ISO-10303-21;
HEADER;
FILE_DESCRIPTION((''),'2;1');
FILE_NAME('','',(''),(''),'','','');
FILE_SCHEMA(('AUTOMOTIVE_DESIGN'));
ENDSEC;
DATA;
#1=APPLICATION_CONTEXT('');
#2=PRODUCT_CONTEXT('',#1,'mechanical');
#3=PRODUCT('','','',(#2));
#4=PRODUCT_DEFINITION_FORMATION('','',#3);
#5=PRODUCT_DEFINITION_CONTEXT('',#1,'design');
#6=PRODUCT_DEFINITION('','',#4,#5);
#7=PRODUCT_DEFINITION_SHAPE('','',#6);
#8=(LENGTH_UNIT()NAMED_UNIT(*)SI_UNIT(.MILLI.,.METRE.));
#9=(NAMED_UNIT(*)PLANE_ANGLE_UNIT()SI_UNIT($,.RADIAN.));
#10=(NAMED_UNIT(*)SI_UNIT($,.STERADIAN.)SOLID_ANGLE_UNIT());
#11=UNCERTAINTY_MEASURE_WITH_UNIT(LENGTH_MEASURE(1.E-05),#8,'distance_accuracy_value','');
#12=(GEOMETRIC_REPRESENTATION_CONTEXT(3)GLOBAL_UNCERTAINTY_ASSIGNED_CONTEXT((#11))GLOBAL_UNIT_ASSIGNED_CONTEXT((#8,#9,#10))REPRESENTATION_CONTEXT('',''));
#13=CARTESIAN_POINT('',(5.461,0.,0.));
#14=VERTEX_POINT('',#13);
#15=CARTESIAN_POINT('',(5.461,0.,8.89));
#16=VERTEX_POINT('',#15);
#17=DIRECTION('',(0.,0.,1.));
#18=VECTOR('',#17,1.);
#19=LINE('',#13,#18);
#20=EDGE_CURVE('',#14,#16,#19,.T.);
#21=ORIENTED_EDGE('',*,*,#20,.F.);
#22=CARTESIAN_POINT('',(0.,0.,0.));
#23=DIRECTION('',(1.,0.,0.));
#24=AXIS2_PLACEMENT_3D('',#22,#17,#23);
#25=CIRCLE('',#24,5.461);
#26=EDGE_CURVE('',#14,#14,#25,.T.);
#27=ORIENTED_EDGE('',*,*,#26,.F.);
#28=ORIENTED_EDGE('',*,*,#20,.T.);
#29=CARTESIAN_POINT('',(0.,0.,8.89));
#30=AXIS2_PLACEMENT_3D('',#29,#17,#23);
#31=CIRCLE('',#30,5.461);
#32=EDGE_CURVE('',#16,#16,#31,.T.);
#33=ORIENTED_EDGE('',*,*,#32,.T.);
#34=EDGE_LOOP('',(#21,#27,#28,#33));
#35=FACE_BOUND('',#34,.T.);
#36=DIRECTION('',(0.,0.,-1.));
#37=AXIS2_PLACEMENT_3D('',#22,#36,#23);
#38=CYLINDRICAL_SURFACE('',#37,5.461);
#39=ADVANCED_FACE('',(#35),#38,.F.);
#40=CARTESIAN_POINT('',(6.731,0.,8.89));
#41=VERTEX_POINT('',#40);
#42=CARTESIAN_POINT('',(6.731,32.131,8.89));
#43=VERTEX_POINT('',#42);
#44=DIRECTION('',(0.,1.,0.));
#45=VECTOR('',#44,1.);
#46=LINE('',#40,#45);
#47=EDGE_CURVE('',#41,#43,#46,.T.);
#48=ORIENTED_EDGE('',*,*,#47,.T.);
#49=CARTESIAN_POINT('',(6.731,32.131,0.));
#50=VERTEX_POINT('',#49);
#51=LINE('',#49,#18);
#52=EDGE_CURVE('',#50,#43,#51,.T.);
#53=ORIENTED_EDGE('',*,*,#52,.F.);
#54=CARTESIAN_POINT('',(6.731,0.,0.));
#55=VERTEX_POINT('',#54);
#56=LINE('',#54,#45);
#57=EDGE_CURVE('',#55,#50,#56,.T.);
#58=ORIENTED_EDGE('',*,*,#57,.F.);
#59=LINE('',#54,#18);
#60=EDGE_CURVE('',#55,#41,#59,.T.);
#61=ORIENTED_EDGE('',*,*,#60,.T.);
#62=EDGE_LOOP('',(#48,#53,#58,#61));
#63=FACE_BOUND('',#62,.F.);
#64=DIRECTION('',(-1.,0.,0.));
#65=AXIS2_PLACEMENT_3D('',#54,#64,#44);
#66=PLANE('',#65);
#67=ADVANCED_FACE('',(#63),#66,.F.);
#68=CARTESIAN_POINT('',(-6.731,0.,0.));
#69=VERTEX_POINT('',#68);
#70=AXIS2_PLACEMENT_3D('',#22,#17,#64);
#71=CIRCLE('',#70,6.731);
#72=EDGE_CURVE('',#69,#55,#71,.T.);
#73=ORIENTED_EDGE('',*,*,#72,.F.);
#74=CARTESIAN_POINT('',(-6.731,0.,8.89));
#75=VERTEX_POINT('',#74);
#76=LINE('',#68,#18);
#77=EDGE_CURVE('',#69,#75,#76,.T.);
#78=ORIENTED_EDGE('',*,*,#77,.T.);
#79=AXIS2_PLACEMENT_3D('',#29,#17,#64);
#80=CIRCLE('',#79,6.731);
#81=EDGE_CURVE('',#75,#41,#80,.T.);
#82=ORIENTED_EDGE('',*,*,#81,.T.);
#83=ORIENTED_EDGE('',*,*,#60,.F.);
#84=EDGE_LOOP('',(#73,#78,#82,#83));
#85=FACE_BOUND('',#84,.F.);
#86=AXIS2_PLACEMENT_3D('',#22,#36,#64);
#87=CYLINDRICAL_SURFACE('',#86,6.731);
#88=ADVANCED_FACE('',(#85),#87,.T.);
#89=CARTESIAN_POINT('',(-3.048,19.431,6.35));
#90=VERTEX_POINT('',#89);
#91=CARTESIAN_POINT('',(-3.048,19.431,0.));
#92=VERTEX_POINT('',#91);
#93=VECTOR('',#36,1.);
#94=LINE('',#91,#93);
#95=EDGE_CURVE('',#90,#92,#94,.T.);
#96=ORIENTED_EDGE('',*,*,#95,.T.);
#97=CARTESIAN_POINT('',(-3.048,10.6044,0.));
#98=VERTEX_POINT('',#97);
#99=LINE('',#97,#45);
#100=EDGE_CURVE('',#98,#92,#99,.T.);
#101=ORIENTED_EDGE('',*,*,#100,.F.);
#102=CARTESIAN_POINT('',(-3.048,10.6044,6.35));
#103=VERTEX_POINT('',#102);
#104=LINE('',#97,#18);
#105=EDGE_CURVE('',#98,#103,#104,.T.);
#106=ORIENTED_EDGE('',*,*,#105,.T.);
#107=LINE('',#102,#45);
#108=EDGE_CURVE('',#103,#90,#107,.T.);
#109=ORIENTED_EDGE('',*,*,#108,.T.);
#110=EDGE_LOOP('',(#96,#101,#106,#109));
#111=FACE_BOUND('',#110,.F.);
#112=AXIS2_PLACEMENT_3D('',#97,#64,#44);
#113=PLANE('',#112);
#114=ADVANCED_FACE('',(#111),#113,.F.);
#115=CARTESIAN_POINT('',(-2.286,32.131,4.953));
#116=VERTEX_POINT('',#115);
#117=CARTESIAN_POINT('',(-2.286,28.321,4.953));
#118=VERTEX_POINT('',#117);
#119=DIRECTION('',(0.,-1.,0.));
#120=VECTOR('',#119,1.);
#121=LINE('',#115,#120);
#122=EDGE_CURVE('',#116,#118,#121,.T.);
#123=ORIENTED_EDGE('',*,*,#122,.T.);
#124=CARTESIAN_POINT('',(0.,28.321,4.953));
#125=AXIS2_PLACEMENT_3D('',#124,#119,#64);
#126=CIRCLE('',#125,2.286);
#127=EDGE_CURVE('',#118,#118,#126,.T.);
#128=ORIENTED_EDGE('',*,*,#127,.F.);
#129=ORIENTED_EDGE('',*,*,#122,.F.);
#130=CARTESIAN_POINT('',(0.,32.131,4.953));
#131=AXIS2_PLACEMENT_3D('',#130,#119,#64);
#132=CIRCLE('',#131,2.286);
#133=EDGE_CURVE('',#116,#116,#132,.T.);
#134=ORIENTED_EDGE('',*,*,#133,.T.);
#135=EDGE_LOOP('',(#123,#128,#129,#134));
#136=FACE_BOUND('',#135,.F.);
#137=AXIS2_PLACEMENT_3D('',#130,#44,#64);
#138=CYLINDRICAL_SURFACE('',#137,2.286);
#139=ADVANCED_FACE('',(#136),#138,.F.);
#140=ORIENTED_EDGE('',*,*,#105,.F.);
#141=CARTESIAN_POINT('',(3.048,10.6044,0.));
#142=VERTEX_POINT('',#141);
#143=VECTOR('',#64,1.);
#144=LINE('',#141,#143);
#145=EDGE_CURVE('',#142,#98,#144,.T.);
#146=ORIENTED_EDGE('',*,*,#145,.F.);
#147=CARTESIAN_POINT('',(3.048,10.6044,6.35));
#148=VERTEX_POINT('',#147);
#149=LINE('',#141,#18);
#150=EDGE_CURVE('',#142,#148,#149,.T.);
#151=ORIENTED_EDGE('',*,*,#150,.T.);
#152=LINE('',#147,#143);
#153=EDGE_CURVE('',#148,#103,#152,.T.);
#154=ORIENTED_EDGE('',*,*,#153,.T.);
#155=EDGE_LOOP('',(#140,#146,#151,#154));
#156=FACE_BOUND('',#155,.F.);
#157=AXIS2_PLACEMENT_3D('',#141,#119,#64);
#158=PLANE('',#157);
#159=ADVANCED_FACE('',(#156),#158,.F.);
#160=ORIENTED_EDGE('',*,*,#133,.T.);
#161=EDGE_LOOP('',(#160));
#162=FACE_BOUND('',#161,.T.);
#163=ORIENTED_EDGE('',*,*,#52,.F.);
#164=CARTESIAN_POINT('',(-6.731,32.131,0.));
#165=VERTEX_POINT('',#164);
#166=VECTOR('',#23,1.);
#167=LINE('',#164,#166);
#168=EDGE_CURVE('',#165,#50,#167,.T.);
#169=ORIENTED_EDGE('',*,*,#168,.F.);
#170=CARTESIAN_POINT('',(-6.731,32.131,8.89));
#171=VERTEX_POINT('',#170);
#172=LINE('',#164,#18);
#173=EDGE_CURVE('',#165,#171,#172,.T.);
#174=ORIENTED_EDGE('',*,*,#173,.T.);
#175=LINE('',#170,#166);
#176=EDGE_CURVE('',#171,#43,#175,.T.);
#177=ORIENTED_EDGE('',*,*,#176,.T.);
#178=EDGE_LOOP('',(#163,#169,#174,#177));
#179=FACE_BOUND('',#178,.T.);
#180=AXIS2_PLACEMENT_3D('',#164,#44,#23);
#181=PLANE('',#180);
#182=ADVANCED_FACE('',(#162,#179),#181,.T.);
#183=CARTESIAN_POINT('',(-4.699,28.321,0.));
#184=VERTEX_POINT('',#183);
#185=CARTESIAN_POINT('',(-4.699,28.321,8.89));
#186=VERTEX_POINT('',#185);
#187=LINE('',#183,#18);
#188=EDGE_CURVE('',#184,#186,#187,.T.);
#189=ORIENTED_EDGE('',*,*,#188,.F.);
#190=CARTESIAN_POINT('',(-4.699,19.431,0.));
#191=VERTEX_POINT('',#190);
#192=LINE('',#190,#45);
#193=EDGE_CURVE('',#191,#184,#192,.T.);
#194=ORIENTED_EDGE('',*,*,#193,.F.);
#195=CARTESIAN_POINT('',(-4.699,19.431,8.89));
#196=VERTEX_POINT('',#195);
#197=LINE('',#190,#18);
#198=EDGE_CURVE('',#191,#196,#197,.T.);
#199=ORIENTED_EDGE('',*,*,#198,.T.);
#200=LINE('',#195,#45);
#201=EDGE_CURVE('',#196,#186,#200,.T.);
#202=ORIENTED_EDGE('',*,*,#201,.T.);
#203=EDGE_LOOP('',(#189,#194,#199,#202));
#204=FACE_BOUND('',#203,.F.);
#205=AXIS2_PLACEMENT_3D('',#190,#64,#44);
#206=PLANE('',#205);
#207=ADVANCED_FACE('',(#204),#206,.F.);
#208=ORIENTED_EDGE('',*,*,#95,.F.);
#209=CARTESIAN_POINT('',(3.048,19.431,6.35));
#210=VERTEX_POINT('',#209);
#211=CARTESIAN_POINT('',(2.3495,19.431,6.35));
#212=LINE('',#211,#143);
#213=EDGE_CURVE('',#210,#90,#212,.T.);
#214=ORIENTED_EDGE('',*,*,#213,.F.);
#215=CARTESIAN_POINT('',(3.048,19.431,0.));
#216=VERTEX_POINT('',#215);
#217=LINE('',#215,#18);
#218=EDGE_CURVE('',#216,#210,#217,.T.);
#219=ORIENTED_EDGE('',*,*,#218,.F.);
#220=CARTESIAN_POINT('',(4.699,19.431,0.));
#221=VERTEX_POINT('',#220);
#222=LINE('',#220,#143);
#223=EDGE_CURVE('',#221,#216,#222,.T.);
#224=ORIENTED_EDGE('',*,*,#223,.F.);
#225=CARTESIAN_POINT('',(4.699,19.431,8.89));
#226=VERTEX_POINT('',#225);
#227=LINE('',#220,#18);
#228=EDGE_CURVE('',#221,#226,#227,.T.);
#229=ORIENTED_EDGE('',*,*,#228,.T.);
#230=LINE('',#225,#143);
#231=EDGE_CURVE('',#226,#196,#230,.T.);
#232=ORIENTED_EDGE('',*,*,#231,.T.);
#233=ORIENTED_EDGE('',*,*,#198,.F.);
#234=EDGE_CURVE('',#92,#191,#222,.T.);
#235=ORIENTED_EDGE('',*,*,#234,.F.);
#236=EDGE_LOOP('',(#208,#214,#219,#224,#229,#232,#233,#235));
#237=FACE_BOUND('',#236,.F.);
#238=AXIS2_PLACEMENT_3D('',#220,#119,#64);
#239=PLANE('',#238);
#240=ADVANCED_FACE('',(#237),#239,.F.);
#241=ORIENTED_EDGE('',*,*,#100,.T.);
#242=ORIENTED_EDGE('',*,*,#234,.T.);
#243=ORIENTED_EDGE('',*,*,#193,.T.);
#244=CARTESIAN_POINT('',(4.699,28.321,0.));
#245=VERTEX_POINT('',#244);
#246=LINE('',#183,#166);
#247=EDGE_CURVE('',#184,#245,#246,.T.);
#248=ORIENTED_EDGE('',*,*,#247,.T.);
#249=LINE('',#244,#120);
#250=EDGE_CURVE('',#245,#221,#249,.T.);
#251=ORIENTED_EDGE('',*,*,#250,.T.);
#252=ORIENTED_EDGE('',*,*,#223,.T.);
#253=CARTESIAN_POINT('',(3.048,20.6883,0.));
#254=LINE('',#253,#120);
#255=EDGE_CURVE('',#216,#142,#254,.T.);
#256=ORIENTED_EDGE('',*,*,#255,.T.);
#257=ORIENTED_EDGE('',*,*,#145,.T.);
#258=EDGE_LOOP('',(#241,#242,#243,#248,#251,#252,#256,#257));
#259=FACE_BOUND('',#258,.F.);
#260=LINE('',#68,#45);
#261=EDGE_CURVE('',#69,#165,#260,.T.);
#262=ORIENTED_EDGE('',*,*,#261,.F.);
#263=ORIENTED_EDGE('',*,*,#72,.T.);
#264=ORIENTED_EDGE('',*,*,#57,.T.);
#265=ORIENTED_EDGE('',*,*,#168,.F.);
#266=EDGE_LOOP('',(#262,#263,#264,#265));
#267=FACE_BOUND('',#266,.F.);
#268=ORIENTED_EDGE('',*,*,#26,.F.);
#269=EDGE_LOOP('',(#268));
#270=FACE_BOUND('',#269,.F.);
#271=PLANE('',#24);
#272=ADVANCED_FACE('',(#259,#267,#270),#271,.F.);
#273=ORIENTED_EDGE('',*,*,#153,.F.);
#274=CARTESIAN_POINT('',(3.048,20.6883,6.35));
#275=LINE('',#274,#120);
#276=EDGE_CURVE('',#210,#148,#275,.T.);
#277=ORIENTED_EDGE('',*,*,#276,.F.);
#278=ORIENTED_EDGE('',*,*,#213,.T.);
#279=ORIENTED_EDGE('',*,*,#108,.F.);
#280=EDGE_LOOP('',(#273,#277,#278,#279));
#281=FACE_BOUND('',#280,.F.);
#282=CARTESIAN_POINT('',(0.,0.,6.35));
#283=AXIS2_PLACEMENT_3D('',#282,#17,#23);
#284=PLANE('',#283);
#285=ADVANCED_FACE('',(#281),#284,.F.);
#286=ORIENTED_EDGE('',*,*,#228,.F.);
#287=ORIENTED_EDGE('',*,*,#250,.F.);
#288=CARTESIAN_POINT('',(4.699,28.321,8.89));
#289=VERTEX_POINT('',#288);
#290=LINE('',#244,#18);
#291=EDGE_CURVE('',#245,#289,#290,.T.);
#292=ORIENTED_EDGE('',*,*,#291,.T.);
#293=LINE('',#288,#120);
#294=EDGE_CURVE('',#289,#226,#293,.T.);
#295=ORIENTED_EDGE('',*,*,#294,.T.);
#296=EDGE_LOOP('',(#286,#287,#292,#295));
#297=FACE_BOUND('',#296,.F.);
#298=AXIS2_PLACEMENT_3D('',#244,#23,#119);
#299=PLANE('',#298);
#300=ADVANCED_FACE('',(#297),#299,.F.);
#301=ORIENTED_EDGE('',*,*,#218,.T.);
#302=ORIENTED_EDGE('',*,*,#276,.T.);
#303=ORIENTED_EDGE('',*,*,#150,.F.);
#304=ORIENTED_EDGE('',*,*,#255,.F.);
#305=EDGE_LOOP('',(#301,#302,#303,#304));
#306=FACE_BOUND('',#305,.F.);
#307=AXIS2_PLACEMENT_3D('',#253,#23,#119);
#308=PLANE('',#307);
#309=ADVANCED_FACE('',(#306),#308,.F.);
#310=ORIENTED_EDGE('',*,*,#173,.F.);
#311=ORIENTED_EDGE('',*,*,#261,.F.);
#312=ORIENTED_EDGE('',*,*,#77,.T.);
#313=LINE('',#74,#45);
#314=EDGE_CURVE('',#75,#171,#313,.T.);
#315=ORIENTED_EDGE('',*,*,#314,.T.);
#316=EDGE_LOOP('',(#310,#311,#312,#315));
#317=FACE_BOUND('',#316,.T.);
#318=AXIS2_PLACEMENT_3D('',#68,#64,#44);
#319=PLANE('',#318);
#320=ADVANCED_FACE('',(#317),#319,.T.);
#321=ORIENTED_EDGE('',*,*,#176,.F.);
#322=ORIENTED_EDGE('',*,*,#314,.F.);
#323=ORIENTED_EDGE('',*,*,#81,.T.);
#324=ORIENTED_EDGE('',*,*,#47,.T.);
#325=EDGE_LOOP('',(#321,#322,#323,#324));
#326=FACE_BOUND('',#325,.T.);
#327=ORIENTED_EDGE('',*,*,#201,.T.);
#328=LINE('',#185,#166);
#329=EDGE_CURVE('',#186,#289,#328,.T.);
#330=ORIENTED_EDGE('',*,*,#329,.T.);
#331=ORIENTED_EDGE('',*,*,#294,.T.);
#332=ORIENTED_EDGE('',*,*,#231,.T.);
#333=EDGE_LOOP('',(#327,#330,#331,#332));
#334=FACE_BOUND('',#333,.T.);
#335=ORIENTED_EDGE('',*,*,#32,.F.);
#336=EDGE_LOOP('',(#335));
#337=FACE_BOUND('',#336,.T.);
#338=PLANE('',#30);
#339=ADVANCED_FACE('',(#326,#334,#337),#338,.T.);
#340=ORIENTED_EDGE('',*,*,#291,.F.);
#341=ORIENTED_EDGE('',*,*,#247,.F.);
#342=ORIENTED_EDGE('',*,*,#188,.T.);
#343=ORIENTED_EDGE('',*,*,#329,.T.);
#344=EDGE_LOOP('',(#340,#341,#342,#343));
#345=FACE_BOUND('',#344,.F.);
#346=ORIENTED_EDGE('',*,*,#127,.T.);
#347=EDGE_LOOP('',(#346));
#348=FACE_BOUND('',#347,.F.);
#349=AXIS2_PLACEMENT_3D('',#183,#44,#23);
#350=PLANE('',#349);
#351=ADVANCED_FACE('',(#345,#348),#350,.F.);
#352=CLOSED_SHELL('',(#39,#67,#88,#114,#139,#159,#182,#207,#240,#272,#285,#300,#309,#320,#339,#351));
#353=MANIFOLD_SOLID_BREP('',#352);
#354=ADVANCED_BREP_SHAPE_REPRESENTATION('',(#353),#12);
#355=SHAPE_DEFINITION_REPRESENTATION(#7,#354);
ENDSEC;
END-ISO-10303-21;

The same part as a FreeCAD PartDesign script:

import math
import FreeCAD as App
import Part
import Sketcher
Q = App.Units.Quantity


def add_polygon(sketch, points):
    """Adds a closed chain of lines whose ends are joined by coincident constraints."""
    first, n = sketch.GeometryCount, len(points)
    for a, b in zip(points, points[1:] + points[:1]):
        sketch.addGeometry(Part.LineSegment(App.Vector(*a, 0), App.Vector(*b, 0)), False)
    for i in range(n):
        sketch.addConstraint(Sketcher.Constraint("Coincident", first + i, 2, first + (i + 1) % n, 1))

doc = App.newDocument("Part")
body = doc.addObject("PartDesign::Body", "Body")

sketch1 = body.newObject("Sketcher::SketchObject", "Sketch")
sketch1.AttachmentSupport = (doc.getObject("XY_Plane"), [""])
sketch1.MapMode = "FlatFace"
sketch1.addGeometry(Part.LineSegment(App.Vector(-6.731, 32.131, 0), App.Vector(-6.731, 0, 0)), False)
sketch1.addGeometry(Part.ArcOfCircle(Part.Circle(App.Vector(0, 0, 0), App.Vector(0, 0, 1), 6.731), math.radians(180), math.radians(360)), False)
sketch1.addGeometry(Part.LineSegment(App.Vector(6.731, 0, 0), App.Vector(6.731, 32.131, 0)), False)
sketch1.addGeometry(Part.LineSegment(App.Vector(6.731, 32.131, 0), App.Vector(-6.731, 32.131, 0)), False)
sketch1.addGeometry(Part.Circle(App.Vector(0, 0, 0), App.Vector(0, 0, 1), 5.461), False)
add_polygon(sketch1, [(4.699, 28.321), (4.699, 19.431), (-4.699, 19.431), (-4.699, 28.321)])
sketch1.addConstraint(Sketcher.Constraint("Tangent", 0, 2, 1, 1))
sketch1.addConstraint(Sketcher.Constraint("Tangent", 1, 2, 2, 1))
sketch1.addConstraint(Sketcher.Constraint("Coincident", 2, 2, 3, 1))
sketch1.addConstraint(Sketcher.Constraint("Coincident", 3, 2, 0, 1))
sketch1.addConstraint(Sketcher.Constraint("Vertical", 0))
sketch1.addConstraint(Sketcher.Constraint("Vertical", 2))
sketch1.addConstraint(Sketcher.Constraint("Horizontal", 3))
sketch1.addConstraint(Sketcher.Constraint("Vertical", 5))
sketch1.addConstraint(Sketcher.Constraint("Horizontal", 6))
sketch1.addConstraint(Sketcher.Constraint("Vertical", 7))
sketch1.addConstraint(Sketcher.Constraint("Horizontal", 8))
sketch1.addConstraint(Sketcher.Constraint("Coincident", 1, 3, -1, 1))
sketch1.addConstraint(Sketcher.Constraint("Coincident", 4, 3, -1, 1))
sketch1.addConstraint(Sketcher.Constraint("Diameter", 4, Q("0.43 in")))
sketch1.addConstraint(Sketcher.Constraint("Radius", 1, Q("0.265 in")))
sketch1.addConstraint(Sketcher.Constraint("DistanceX", 6, 2, 6, 1, Q("0.37 in")))
sketch1.addConstraint(Sketcher.Constraint("DistanceY", 5, 2, 5, 1, Q("0.35 in")))
sketch1.addConstraint(Sketcher.Constraint("DistanceY", 5, 2, 2, 2, Q("0.5 in")))
sketch1.addConstraint(Sketcher.Constraint("DistanceY", 0, 2, 0, 1, Q("1.265 in")))
sketch1.addConstraint(Sketcher.Constraint("DistanceX", 5, 2, 2, 2, Q("0.08 in")))
pad1 = body.newObject("PartDesign::Pad", "Pad")
pad1.Profile = sketch1
pad1.Length = Q("0.35 in")

sketch2 = body.newObject("Sketcher::SketchObject", "Sketch001")
sketch2.AttachmentSupport = (doc.getObject("XZ_Plane"), [""])
sketch2.MapMode = "FlatFace"
sketch2.AttachmentOffset = App.Placement(App.Vector(0, 0, -1.265 * 25.4), App.Rotation())
sketch2.addGeometry(Part.Circle(App.Vector(0, 4.953, 0), App.Vector(0, 0, 1), 2.286), False)
sketch2.addConstraint(Sketcher.Constraint("PointOnObject", 0, 3, -2))
sketch2.addConstraint(Sketcher.Constraint("Diameter", 0, Q("0.18 in")))
sketch2.addConstraint(Sketcher.Constraint("DistanceY", -1, 1, 0, 3, Q("0.195 in")))
pocket1 = body.newObject("PartDesign::Pocket", "Pocket")
pocket1.Profile = sketch2
pocket1.Length = Q("0.23 in")
pocket1.Reversed = True

sketch3 = body.newObject("Sketcher::SketchObject", "Sketch002")
sketch3.AttachmentSupport = (doc.getObject("XY_Plane"), [""])
sketch3.MapMode = "FlatFace"
add_polygon(sketch3, [(3.048, 20.6883), (-3.048, 20.6883), (-3.048, 10.6044), (3.048, 10.6044)])
sketch3.addConstraint(Sketcher.Constraint("Horizontal", 0))
sketch3.addConstraint(Sketcher.Constraint("Vertical", 1))
sketch3.addConstraint(Sketcher.Constraint("Horizontal", 2))
sketch3.addConstraint(Sketcher.Constraint("Vertical", 3))
sketch3.addConstraint(Sketcher.Constraint("DistanceX", 0, 2, 0, 1, Q("0.24 in")))
sketch3.addConstraint(Sketcher.Constraint("DistanceY", 1, 2, 1, 1, Q("0.397 in")))
sketch3.addConstraint(Sketcher.Constraint("DistanceX", 0, 2, -1, 1, Q("0.12 in")))
sketch3.addConstraint(Sketcher.Constraint("DistanceY", -1, 1, 0, 2, Q("0.8145 in")))
pocket2 = body.newObject("PartDesign::Pocket", "Pocket001")
pocket2.Profile = sketch3
pocket2.Length = Q("0.25 in")
pocket2.Reversed = True

doc.recompute()
